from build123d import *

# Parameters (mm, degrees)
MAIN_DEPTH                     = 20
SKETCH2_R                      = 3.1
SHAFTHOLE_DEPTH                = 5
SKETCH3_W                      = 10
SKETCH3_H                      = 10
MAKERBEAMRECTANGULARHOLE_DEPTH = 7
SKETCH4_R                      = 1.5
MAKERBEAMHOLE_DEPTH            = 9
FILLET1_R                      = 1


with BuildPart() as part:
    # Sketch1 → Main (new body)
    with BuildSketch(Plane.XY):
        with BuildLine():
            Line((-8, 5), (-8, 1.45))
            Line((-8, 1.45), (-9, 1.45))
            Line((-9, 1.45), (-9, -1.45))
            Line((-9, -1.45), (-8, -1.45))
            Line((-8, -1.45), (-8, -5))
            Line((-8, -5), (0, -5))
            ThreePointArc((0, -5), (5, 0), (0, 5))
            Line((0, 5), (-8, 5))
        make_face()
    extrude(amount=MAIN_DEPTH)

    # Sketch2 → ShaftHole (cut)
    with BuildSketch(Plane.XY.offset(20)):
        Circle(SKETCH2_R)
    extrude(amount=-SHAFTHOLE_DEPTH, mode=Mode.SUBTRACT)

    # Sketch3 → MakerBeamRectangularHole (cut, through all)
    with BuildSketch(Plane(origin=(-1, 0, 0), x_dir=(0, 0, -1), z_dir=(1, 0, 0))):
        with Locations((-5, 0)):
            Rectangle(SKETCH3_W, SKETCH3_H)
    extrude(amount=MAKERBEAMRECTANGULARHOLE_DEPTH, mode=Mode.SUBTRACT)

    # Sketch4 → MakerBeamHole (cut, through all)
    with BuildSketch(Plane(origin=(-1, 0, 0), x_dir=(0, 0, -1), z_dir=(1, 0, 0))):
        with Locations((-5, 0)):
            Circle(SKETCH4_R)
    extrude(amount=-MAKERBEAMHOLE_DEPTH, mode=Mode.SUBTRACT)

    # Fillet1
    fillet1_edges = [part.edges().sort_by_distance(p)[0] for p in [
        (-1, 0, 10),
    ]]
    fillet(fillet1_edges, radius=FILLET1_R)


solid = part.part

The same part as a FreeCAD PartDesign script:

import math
import FreeCAD as App
import Part
import Sketcher

V = App.Vector
Q = App.Units.Quantity


def edges_at(feature, points):
    """Names of the edges that pass closest to the given points."""
    edges = feature.Shape.Edges
    near = lambda p: min(range(len(edges)), key=lambda i: edges[i].distToShape(Part.Vertex(*p))[0])
    return sorted({f"Edge{near(p) + 1}" for p in points})


def add_polygon(sketch, points):
    """Adds a closed chain of lines whose ends are joined by coincident constraints."""
    first, n = sketch.GeometryCount, len(points)
    for a, b in zip(points, points[1:] + points[:1]):
        sketch.addGeometry(Part.LineSegment(App.Vector(*a, 0), App.Vector(*b, 0)), False)
    for i in range(n):
        sketch.addConstraint(Sketcher.Constraint("Coincident", first + i, 2, first + (i + 1) % n, 1))

doc = App.newDocument("Part")
body = doc.addObject("PartDesign::Body", "Body")

sketch1 = body.newObject("Sketcher::SketchObject", "Sketch")
sketch1.AttachmentSupport = (doc.getObject("XY_Plane"), [""])
sketch1.MapMode = "FlatFace"
sketch1.addGeometry([
    Part.LineSegment(V(-8, 5, 0), V(-8, 1.4, 0)),
    Part.LineSegment(V(-8, 1.4, 0), V(-9, 1.4, 0)),
    Part.LineSegment(V(-9, 1.4, 0), V(-9, -1.4, 0)),
    Part.LineSegment(V(-9, -1.4, 0), V(-8, -1.4, 0)),
    Part.LineSegment(V(-8, -1.4, 0), V(-8, -5, 0)),
    Part.LineSegment(V(-8, -5, 0), V(0, -5, 0)),
    Part.ArcOfCircle(Part.Circle(V(0, 0, 0), V(0, 0, 1), 5), math.radians(-90), math.radians(90)),
    Part.LineSegment(V(0, 5, 0), V(-8, 5, 0)),
], False)
sketch1.addConstraint([
    Sketcher.Constraint("Coincident", 0, 2, 1, 1),
    Sketcher.Constraint("Coincident", 1, 2, 2, 1),
    Sketcher.Constraint("Coincident", 2, 2, 3, 1),
    Sketcher.Constraint("Coincident", 3, 2, 4, 1),
    Sketcher.Constraint("Coincident", 4, 2, 5, 1),
    Sketcher.Constraint("Tangent", 5, 2, 6, 1),
    Sketcher.Constraint("Tangent", 6, 2, 7, 1),
    Sketcher.Constraint("Coincident", 7, 2, 0, 1),
    Sketcher.Constraint("Vertical", 0),
    Sketcher.Constraint("Horizontal", 1),
    Sketcher.Constraint("Vertical", 2),
    Sketcher.Constraint("Horizontal", 3),
    Sketcher.Constraint("Vertical", 4),
    Sketcher.Constraint("Horizontal", 5),
    Sketcher.Constraint("Horizontal", 7),
    Sketcher.Constraint("Coincident", 6, 3, -1, 1),
    Sketcher.Constraint("Symmetric", 0, 2, 3, 2, -1),
    Sketcher.Constraint("Radius", 6, Q("5 mm")),
    Sketcher.Constraint("DistanceX", 1, 2, 1, 1, Q("1 mm")),
    Sketcher.Constraint("DistanceX", 5, 1, 5, 2, Q("8 mm")),
    Sketcher.Constraint("DistanceY", 2, 2, 2, 1, Q("2.9 mm")),
])
pad1 = body.newObject("PartDesign::Pad", "Pad")
pad1.Profile = sketch1
pad1.Length = 20

sketch2 = body.newObject("Sketcher::SketchObject", "Sketch001")
sketch2.AttachmentSupport = (doc.getObject("XY_Plane"), [""])
sketch2.MapMode = "FlatFace"
sketch2.AttachmentOffset = App.Placement(V(0, 0, 20), App.Rotation())
sketch2.addGeometry(Part.Circle(V(0, 0, 0), V(0, 0, 1), 3.1), False)
sketch2.addConstraint([
    Sketcher.Constraint("Coincident", 0, 3, -1, 1),
    Sketcher.Constraint("Diameter", 0, Q("6.2 mm")),
])
pocket1 = body.newObject("PartDesign::Pocket", "Pocket")
pocket1.Profile = sketch2
pocket1.Length = 5

sketch3 = body.newObject("Sketcher::SketchObject", "Sketch002")
sketch3.AttachmentSupport = (doc.getObject("YZ_Plane"), [""])
sketch3.MapMode = "FlatFace"
sketch3.AttachmentOffset = App.Placement(V(0, 0, -1), App.Rotation())
add_polygon(sketch3, [(5, 10), (-5, 10), (-5, 0), (5, 0)])
sketch3.addConstraint([
    Sketcher.Constraint("Horizontal", 0),
    Sketcher.Constraint("Vertical", 1),
    Sketcher.Constraint("Horizontal", 2),
    Sketcher.Constraint("Vertical", 3),
    Sketcher.Constraint("Symmetric", 1, 2, 2, 2, -1, 1),
    Sketcher.Constraint("Equal", 2, 1),
    Sketcher.Constraint("DistanceX", 0, 2, 0, 1, Q("10 mm")),
])
pocket2 = body.newObject("PartDesign::Pocket", "Pocket001")
pocket2.Profile = sketch3
pocket2.Type = "ThroughAll"
pocket2.Reversed = True

sketch4 = body.newObject("Sketcher::SketchObject", "Sketch003")
sketch4.AttachmentSupport = (doc.getObject("YZ_Plane"), [""])
sketch4.MapMode = "FlatFace"
sketch4.AttachmentOffset = App.Placement(V(0, 0, -1), App.Rotation())
sketch4.addGeometry(Part.Circle(V(0, 5, 0), V(0, 0, 1), 1.5), False)
sketch4.addConstraint([
    Sketcher.Constraint("PointOnObject", 0, 3, -2),
    Sketcher.Constraint("Diameter", 0, Q("3 mm")),
    Sketcher.Constraint("DistanceY", -1, 1, 0, 3, Q("5 mm")),
])
pocket3 = body.newObject("PartDesign::Pocket", "Pocket002")
pocket3.Profile = sketch4
pocket3.Type = "ThroughAll"
doc.recompute()

fillet = body.newObject("PartDesign::Fillet", "Fillet")
fillet.Base = (pocket3, edges_at(pocket3, [(-1, 0, 10)]))
fillet.Radius = 1

doc.recompute()
